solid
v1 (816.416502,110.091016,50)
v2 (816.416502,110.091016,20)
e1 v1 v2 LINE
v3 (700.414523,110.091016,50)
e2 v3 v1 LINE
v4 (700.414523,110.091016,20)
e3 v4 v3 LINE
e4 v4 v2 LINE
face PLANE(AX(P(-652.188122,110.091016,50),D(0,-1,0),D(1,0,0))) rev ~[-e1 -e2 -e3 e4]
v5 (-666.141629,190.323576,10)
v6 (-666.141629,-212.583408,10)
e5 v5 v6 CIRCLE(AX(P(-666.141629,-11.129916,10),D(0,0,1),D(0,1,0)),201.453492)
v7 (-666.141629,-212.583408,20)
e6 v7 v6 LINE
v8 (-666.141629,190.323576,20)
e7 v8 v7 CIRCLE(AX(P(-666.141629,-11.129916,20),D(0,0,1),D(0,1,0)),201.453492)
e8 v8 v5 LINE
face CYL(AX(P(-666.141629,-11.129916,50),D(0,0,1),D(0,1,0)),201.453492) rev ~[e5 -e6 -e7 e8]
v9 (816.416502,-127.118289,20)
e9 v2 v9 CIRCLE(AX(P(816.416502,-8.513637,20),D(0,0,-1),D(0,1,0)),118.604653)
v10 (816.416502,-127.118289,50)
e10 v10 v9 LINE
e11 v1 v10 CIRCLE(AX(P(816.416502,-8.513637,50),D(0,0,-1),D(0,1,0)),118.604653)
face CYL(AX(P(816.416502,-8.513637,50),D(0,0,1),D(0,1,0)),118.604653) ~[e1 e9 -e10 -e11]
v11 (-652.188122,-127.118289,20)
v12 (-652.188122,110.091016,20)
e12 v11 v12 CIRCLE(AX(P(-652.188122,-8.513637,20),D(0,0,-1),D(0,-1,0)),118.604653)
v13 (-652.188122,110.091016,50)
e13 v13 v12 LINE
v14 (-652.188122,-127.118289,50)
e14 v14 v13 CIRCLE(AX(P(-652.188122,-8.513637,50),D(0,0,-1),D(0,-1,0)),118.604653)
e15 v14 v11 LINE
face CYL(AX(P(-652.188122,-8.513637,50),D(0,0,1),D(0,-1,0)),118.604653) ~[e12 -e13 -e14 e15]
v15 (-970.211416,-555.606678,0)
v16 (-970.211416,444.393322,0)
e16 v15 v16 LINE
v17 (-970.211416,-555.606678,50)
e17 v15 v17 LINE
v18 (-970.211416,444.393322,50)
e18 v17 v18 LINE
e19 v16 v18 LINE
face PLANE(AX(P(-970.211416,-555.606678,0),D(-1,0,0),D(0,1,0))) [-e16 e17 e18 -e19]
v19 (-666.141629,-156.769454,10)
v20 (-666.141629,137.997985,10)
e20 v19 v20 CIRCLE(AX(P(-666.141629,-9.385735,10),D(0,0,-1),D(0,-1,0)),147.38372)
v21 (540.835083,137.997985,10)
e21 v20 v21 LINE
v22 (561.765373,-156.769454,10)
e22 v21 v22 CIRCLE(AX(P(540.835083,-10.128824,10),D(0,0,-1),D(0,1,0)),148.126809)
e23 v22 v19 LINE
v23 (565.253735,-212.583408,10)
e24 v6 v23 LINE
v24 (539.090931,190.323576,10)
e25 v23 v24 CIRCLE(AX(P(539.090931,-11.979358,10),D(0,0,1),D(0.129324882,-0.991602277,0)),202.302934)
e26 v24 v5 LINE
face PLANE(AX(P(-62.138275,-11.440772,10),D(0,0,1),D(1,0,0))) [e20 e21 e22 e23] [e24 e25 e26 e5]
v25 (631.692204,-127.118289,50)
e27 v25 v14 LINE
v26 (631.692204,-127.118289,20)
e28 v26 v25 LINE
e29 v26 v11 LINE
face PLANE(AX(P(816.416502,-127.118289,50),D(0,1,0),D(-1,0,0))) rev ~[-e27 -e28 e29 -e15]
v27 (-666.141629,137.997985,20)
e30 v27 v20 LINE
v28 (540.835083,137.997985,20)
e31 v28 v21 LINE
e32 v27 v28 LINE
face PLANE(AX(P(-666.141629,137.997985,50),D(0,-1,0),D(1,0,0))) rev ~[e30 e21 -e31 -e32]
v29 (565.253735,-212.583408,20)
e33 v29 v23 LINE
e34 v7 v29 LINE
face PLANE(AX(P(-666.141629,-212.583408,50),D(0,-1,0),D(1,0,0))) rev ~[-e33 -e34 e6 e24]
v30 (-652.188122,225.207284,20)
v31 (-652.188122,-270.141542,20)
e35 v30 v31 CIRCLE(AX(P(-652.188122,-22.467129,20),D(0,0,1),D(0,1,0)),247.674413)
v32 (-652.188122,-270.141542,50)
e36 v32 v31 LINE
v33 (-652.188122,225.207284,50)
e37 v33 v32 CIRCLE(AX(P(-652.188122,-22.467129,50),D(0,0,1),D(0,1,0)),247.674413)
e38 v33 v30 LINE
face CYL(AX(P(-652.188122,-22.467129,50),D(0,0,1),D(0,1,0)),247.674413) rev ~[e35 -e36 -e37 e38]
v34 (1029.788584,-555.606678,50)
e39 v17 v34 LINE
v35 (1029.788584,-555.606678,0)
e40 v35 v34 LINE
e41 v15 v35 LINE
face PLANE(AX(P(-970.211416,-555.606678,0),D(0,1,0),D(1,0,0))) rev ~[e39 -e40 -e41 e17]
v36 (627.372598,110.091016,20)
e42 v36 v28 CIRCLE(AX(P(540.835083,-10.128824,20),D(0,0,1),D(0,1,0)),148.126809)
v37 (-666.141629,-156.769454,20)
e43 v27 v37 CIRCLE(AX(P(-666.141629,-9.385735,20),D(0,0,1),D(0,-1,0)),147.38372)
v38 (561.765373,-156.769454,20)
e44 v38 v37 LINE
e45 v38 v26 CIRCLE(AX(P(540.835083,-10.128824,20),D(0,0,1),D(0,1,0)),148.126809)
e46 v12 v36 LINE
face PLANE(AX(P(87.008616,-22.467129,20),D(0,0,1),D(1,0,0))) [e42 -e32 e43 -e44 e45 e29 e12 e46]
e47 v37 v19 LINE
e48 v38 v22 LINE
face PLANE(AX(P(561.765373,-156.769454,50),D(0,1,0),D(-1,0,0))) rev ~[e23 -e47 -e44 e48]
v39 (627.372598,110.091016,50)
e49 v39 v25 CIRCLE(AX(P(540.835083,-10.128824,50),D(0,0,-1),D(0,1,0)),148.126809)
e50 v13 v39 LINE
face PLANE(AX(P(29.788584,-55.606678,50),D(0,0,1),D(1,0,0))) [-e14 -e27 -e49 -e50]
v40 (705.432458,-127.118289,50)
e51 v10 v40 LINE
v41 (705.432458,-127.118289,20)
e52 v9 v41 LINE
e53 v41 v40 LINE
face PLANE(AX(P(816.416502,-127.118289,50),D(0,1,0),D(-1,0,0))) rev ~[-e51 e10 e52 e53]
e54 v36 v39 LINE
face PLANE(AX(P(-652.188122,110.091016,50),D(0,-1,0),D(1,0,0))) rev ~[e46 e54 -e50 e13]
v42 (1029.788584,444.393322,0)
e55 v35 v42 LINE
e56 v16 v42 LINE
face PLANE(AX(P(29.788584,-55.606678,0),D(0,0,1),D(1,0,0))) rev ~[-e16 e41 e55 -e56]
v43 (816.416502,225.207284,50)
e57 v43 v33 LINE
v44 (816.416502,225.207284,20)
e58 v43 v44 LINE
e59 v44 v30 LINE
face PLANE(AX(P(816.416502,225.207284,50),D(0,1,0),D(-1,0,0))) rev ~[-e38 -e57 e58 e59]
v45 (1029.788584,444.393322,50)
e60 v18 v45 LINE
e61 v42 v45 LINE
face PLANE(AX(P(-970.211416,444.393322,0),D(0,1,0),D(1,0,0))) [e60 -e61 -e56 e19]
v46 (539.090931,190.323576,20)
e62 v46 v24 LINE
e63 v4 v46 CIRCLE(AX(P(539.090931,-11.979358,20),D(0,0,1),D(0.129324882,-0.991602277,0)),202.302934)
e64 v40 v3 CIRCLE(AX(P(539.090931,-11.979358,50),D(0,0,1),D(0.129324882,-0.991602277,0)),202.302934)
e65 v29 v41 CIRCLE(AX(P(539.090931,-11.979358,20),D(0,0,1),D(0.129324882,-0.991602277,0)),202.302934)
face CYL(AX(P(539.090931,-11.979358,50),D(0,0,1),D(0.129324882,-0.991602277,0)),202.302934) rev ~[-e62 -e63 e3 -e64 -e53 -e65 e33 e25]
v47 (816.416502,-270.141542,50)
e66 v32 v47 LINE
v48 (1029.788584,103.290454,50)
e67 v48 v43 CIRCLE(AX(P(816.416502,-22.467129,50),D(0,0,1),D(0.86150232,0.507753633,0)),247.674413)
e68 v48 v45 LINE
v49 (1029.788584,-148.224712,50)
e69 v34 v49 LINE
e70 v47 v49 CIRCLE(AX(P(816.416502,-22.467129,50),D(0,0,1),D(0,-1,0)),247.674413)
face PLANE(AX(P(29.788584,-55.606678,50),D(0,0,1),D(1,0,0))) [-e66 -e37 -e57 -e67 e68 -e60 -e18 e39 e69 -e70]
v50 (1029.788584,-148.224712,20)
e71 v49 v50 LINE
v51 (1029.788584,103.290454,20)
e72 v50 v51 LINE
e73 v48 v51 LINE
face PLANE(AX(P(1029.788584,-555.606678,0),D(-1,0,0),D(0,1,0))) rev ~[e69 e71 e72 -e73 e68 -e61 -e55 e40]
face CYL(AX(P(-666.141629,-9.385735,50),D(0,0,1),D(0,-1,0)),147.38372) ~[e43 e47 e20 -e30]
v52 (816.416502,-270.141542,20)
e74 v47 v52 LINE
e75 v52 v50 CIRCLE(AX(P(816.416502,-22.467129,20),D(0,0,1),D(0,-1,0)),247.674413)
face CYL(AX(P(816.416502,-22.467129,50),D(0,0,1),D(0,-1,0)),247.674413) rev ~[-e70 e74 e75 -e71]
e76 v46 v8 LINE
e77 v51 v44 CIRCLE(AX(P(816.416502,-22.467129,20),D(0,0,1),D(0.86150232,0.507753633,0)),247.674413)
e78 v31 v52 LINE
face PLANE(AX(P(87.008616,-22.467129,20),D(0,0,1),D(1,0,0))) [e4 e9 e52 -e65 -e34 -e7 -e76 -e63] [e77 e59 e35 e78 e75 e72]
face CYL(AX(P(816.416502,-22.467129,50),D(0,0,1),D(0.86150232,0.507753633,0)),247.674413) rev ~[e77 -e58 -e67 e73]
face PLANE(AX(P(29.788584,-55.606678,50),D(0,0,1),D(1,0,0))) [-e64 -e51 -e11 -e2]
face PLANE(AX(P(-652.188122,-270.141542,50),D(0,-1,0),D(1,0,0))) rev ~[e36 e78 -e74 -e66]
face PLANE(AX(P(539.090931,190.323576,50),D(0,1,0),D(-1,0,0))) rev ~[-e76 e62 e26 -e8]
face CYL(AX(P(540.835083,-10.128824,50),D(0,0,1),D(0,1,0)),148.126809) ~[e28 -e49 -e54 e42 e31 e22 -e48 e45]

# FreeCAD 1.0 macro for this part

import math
import FreeCAD as App
import Part
import Sketcher

doc = App.newDocument("Part")
body = doc.addObject("PartDesign::Body", "Body")

sketch1 = body.newObject("Sketcher::SketchObject", "Sketch")
sketch1.AttachmentSupport = (doc.getObject("XY_Plane"), [""])
sketch1.MapMode = "FlatFace"
sketch1.addGeometry(Part.LineSegment(App.Vector(-970.211416, 444.393322, 0), App.Vector(-970.211416, -555.606678, 0)), False)
sketch1.addGeometry(Part.LineSegment(App.Vector(-970.211416, -555.606678, 0), App.Vector(1029.788584, -555.606678, 0)), False)
sketch1.addGeometry(Part.LineSegment(App.Vector(1029.788584, -555.606678, 0), App.Vector(1029.788584, 444.393322, 0)), False)
sketch1.addGeometry(Part.LineSegment(App.Vector(1029.788584, 444.393322, 0), App.Vector(-970.211416, 444.393322, 0)), False)
sketch1.addConstraint(Sketcher.Constraint("Coincident", 0, 2, 1, 1))
sketch1.addConstraint(Sketcher.Constraint("Coincident", 1, 2, 2, 1))
sketch1.addConstraint(Sketcher.Constraint("Coincident", 2, 2, 3, 1))
sketch1.addConstraint(Sketcher.Constraint("Coincident", 3, 2, 0, 1))
sketch1.addConstraint(Sketcher.Constraint("Vertical", 0))
sketch1.addConstraint(Sketcher.Constraint("Horizontal", 1))
sketch1.addConstraint(Sketcher.Constraint("Vertical", 2))
sketch1.addConstraint(Sketcher.Constraint("Horizontal", 3))
sketch1.addConstraint(Sketcher.Constraint("DistanceX", 1, 1, 1, 2, 2000.0))
sketch1.addConstraint(Sketcher.Constraint("DistanceY", 0, 2, 0, 1, 1000.0))
sketch1.addConstraint(Sketcher.Constraint("DistanceX", 0, 2, -1, 1, 970.211416))
sketch1.addConstraint(Sketcher.Constraint("DistanceY", 0, 2, -1, 1, 555.606678))
pad1 = body.newObject("PartDesign::Pad", "Pad")
pad1.Profile = sketch1
pad1.Length = 50

sketch2 = body.newObject("Sketcher::SketchObject", "Sketch001")
sketch2.AttachmentSupport = (doc.getObject("XY_Plane"), [""])
sketch2.MapMode = "FlatFace"
sketch2.AttachmentOffset = App.Placement(App.Vector(0, 0, 50), App.Rotation())
sketch2.addGeometry(Part.LineSegment(App.Vector(816.416502, 225.207284, 0), App.Vector(-652.188122, 225.207284, 0)), False)
sketch2.addGeometry(Part.ArcOfCircle(Part.Circle(App.Vector(-652.188122, -22.467129, 0), App.Vector(0, 0, 1), 247.674413), math.radians(90), math.radians(270)), False)
sketch2.addGeometry(Part.LineSegment(App.Vector(-652.188122, -270.141542, 0), App.Vector(816.416502, -270.141542, 0)), False)
sketch2.addGeometry(Part.ArcOfCircle(Part.Circle(App.Vector(816.416502, -22.467129, 0), App.Vector(0, 0, 1), 247.674413), math.radians(-90), math.radians(-30.514316)), False)
sketch2.addGeometry(Part.LineSegment(App.Vector(1029.788584, -148.224712, 0), App.Vector(1029.788584, 103.290454, 0)), False)
sketch2.addGeometry(Part.ArcOfCircle(Part.Circle(App.Vector(816.416502, -22.467129, 0), App.Vector(0, 0, 1), 247.674413), math.radians(30.514316), math.radians(90)), False)
sketch2.addGeometry(Part.ArcOfCircle(Part.Circle(App.Vector(816.416502, -8.513637, 0), App.Vector(0, 0, 1), 118.604653), math.radians(-90), math.radians(90)), False)
sketch2.addGeometry(Part.LineSegment(App.Vector(816.416502, -127.118289, 0), App.Vector(-652.188122, -127.118289, 0)), False)
sketch2.addGeometry(Part.ArcOfCircle(Part.Circle(App.Vector(-652.188122, -8.513637, 0), App.Vector(0, 0, 1), 118.604653), math.radians(90), math.radians(270)), False)
sketch2.addGeometry(Part.LineSegment(App.Vector(-652.188122, 110.091016, 0), App.Vector(816.416502, 110.091016, 0)), False)
sketch2.addConstraint(Sketcher.Constraint("Tangent", 0, 2, 1, 1))
sketch2.addConstraint(Sketcher.Constraint("Tangent", 1, 2, 2, 1))
sketch2.addConstraint(Sketcher.Constraint("Tangent", 2, 2, 3, 1))
sketch2.addConstraint(Sketcher.Constraint("Coincident", 3, 2, 4, 1))
sketch2.addConstraint(Sketcher.Constraint("Coincident", 4, 2, 5, 1))
sketch2.addConstraint(Sketcher.Constraint("Tangent", 5, 2, 0, 1))
sketch2.addConstraint(Sketcher.Constraint("Tangent", 6, 1, 7, 1))
sketch2.addConstraint(Sketcher.Constraint("Tangent", 7, 2, 8, 2))
sketch2.addConstraint(Sketcher.Constraint("Tangent", 8, 1, 9, 1))
sketch2.addConstraint(Sketcher.Constraint("Tangent", 9, 2, 6, 2))
sketch2.addConstraint(Sketcher.Constraint("Horizontal", 0))
sketch2.addConstraint(Sketcher.Constraint("Horizontal", 2))
sketch2.addConstraint(Sketcher.Constraint("Vertical", 4))
sketch2.addConstraint(Sketcher.Constraint("Horizontal", 7))
sketch2.addConstraint(Sketcher.Constraint("Horizontal", 9))
sketch2.addConstraint(Sketcher.Constraint("Coincident", 5, 3, 3, 3))
sketch2.addConstraint(Sketcher.Constraint("Equal", 1, 3))
sketch2.addConstraint(Sketcher.Constraint("Vertical", 5, 3, 6, 3))
sketch2.addConstraint(Sketcher.Constraint("Vertical", 1, 3, 8, 3))
sketch2.addConstraint(Sketcher.Constraint("Radius", 1, 247.674413))
sketch2.addConstraint(Sketcher.Constraint("Radius", 6, 118.604653))
sketch2.addConstraint(Sketcher.Constraint("DistanceX", -1, 1, 3, 3, 816.416502))
sketch2.addConstraint(Sketcher.Constraint("DistanceX", 0, 2, 0, 1, 1468.604624))
sketch2.addConstraint(Sketcher.Constraint("DistanceY", 4, 1, 4, 2, 251.515166))
sketch2.addConstraint(Sketcher.Constraint("DistanceY", 1, 3, -1, 1, 22.467129))
sketch2.addConstraint(Sketcher.Constraint("DistanceY", 6, 1, -1, 1, 127.118289))
pocket1 = body.newObject("PartDesign::Pocket", "Pocket")
pocket1.Profile = sketch2
pocket1.Length = 30

sketch3 = body.newObject("Sketcher::SketchObject", "Sketch002")
sketch3.AttachmentSupport = (doc.getObject("XY_Plane"), [""])
sketch3.MapMode = "FlatFace"
sketch3.AttachmentOffset = App.Placement(App.Vector(0, 0, 50), App.Rotation())
sketch3.addGeometry(Part.LineSegment(App.Vector(539.090931, 190.323576, 0), App.Vector(-666.141629, 190.323576, 0)), False)
sketch3.addGeometry(Part.ArcOfCircle(Part.Circle(App.Vector(-666.141629, -11.129916, 0), App.Vector(0, 0, 1), 201.453492), math.radians(90), math.radians(270)), False)
sketch3.addGeometry(Part.LineSegment(App.Vector(-666.141629, -212.583408, 0), App.Vector(565.253735, -212.583408, 0)), False)
sketch3.addGeometry(Part.ArcOfCircle(Part.Circle(App.Vector(539.090931, -11.979358, 0), App.Vector(0, 0, 1), 202.302934), math.radians(-82.569418), math.radians(90)), False)
sketch3.addGeometry(Part.ArcOfCircle(Part.Circle(App.Vector(540.835083, -10.128824, 0), App.Vector(0, 0, 1), 148.126809), math.radians(-81.876932), math.radians(90)), False)
sketch3.addGeometry(Part.LineSegment(App.Vector(561.765373, -156.769454, 0), App.Vector(-666.141629, -156.769454, 0)), False)
sketch3.addGeometry(Part.ArcOfCircle(Part.Circle(App.Vector(-666.141629, -9.385735, 0), App.Vector(0, 0, 1), 147.38372), math.radians(90), math.radians(270)), False)
sketch3.addGeometry(Part.LineSegment(App.Vector(-666.141629, 137.997985, 0), App.Vector(540.835083, 137.997985, 0)), False)
sketch3.addConstraint(Sketcher.Constraint("Tangent", 0, 2, 1, 1))
sketch3.addConstraint(Sketcher.Constraint("Tangent", 1, 2, 2, 1))
sketch3.addConstraint(Sketcher.Constraint("Coincident", 2, 2, 3, 1))
sketch3.addConstraint(Sketcher.Constraint("Tangent", 3, 2, 0, 1))
sketch3.addConstraint(Sketcher.Constraint("Coincident", 4, 1, 5, 1))
sketch3.addConstraint(Sketcher.Constraint("Tangent", 5, 2, 6, 2))
sketch3.addConstraint(Sketcher.Constraint("Tangent", 6, 1, 7, 1))
sketch3.addConstraint(Sketcher.Constraint("Tangent", 7, 2, 4, 2))
sketch3.addConstraint(Sketcher.Constraint("Horizontal", 0))
sketch3.addConstraint(Sketcher.Constraint("Horizontal", 2))
sketch3.addConstraint(Sketcher.Constraint("Horizontal", 5))
sketch3.addConstraint(Sketcher.Constraint("Horizontal", 7))
sketch3.addConstraint(Sketcher.Constraint("Vertical", 1, 3, 6, 3))
sketch3.addConstraint(Sketcher.Constraint("DistanceX", 5, 2, 5, 1, 1227.907002))
sketch3.addConstraint(Sketcher.Constraint("Radius", 4, 148.126809))
sketch3.addConstraint(Sketcher.Constraint("Radius", 6, 147.38372))
sketch3.addConstraint(Sketcher.Constraint("Radius", 1, 201.453492))
sketch3.addConstraint(Sketcher.Constraint("Radius", 3, 202.302934))
sketch3.addConstraint(Sketcher.Constraint("DistanceX", 0, 2, 0, 1, 1205.232561))
sketch3.addConstraint(Sketcher.Constraint("DistanceY", 4, 3, 0, 2, 200.4524))
sketch3.addConstraint(Sketcher.Constraint("DistanceX", 1, 3, -1, 1, 666.141629))
sketch3.addConstraint(Sketcher.Constraint("DistanceY", 1, 3, -1, 1, 11.129916))
pocket2 = body.newObject("PartDesign::Pocket", "Pocket001")
pocket2.Profile = sketch3
pocket2.Length = 40

doc.recompute()
